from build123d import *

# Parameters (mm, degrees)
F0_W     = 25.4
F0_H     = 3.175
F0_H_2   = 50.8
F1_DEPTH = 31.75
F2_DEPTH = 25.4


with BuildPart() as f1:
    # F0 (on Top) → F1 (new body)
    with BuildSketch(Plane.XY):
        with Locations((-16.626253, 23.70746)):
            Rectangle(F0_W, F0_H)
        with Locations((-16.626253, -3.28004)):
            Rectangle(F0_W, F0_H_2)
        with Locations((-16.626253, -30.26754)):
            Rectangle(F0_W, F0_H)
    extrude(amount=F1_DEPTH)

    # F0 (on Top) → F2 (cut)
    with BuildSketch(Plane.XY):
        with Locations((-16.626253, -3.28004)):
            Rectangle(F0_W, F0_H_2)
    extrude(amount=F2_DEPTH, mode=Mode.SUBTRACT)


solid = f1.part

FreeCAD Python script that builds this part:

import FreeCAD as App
import Part
import Sketcher
Q = App.Units.Quantity

doc = App.newDocument("Part")
body = doc.addObject("PartDesign::Body", "Body")

# Sketch on XY plane
sketch1 = body.newObject("Sketcher::SketchObject", "Sketch")
sketch1.AttachmentSupport = (doc.getObject("XY_Plane"), [""])
sketch1.MapMode = "FlatFace"
sketch1.addGeometry([
    Part.LineSegment(App.Vector(-29.326253, 25.29496, 0), App.Vector(-29.326253, -31.85504, 0)),
    Part.LineSegment(App.Vector(-29.326253, -31.85504, 0), App.Vector(-3.926253, -31.85504, 0)),
    Part.LineSegment(App.Vector(-3.926253, -31.85504, 0), App.Vector(-3.926253, 25.29496, 0)),
    Part.LineSegment(App.Vector(-3.926253, 25.29496, 0), App.Vector(-29.326253, 25.29496, 0)),
], False)
sketch1.addConstraint([
    Sketcher.Constraint("Coincident", 0, 2, 1, 1),
    Sketcher.Constraint("Coincident", 1, 2, 2, 1),
    Sketcher.Constraint("Coincident", 2, 2, 3, 1),
    Sketcher.Constraint("Coincident", 3, 2, 0, 1),
    Sketcher.Constraint("Vertical", 0),
    Sketcher.Constraint("Horizontal", 1),
    Sketcher.Constraint("Vertical", 2),
    Sketcher.Constraint("Horizontal", 3),
    Sketcher.Constraint("DistanceX", 1, 1, 1, 2, Q("1 in")),
    Sketcher.Constraint("DistanceY", 0, 2, 0, 1, Q("2.25 in")),
    Sketcher.Constraint("DistanceY", 0, 2, -1, 1, Q("31.85504 mm")),
    Sketcher.Constraint("DistanceX", 0, 2, -1, 1, Q("29.326253 mm")),
])
pad1 = body.newObject("PartDesign::Pad", "Pad")
pad1.Profile = sketch1
pad1.Length = Q("1.25 in")

# Sketch on XY plane
sketch2 = body.newObject("Sketcher::SketchObject", "Sketch001")
sketch2.AttachmentSupport = (doc.getObject("XY_Plane"), [""])
sketch2.MapMode = "FlatFace"
sketch2.addGeometry([
    Part.LineSegment(App.Vector(-29.326253, 22.11996, 0), App.Vector(-29.326253, -28.68004, 0)),
    Part.LineSegment(App.Vector(-29.326253, -28.68004, 0), App.Vector(-3.926253, -28.68004, 0)),
    Part.LineSegment(App.Vector(-3.926253, -28.68004, 0), App.Vector(-3.926253, 22.11996, 0)),
    Part.LineSegment(App.Vector(-3.926253, 22.11996, 0), App.Vector(-29.326253, 22.11996, 0)),
], False)
sketch2.addConstraint([
    Sketcher.Constraint("Coincident", 0, 2, 1, 1),
    Sketcher.Constraint("Coincident", 1, 2, 2, 1),
    Sketcher.Constraint("Coincident", 2, 2, 3, 1),
    Sketcher.Constraint("Coincident", 3, 2, 0, 1),
    Sketcher.Constraint("Vertical", 0),
    Sketcher.Constraint("Horizontal", 1),
    Sketcher.Constraint("Vertical", 2),
    Sketcher.Constraint("Horizontal", 3),
    Sketcher.Constraint("DistanceX", 1, 1, 1, 2, Q("1 in")),
    Sketcher.Constraint("DistanceY", 0, 2, 0, 1, Q("2 in")),
    Sketcher.Constraint("DistanceY", 0, 2, -1, 1, Q("28.68004 mm")),
    Sketcher.Constraint("DistanceX", 0, 2, -1, 1, Q("29.326253 mm")),
])
pocket1 = body.newObject("PartDesign::Pocket", "Pocket")
pocket1.Profile = sketch2
pocket1.Length = Q("1 in")
pocket1.Reversed = True

doc.recompute()
